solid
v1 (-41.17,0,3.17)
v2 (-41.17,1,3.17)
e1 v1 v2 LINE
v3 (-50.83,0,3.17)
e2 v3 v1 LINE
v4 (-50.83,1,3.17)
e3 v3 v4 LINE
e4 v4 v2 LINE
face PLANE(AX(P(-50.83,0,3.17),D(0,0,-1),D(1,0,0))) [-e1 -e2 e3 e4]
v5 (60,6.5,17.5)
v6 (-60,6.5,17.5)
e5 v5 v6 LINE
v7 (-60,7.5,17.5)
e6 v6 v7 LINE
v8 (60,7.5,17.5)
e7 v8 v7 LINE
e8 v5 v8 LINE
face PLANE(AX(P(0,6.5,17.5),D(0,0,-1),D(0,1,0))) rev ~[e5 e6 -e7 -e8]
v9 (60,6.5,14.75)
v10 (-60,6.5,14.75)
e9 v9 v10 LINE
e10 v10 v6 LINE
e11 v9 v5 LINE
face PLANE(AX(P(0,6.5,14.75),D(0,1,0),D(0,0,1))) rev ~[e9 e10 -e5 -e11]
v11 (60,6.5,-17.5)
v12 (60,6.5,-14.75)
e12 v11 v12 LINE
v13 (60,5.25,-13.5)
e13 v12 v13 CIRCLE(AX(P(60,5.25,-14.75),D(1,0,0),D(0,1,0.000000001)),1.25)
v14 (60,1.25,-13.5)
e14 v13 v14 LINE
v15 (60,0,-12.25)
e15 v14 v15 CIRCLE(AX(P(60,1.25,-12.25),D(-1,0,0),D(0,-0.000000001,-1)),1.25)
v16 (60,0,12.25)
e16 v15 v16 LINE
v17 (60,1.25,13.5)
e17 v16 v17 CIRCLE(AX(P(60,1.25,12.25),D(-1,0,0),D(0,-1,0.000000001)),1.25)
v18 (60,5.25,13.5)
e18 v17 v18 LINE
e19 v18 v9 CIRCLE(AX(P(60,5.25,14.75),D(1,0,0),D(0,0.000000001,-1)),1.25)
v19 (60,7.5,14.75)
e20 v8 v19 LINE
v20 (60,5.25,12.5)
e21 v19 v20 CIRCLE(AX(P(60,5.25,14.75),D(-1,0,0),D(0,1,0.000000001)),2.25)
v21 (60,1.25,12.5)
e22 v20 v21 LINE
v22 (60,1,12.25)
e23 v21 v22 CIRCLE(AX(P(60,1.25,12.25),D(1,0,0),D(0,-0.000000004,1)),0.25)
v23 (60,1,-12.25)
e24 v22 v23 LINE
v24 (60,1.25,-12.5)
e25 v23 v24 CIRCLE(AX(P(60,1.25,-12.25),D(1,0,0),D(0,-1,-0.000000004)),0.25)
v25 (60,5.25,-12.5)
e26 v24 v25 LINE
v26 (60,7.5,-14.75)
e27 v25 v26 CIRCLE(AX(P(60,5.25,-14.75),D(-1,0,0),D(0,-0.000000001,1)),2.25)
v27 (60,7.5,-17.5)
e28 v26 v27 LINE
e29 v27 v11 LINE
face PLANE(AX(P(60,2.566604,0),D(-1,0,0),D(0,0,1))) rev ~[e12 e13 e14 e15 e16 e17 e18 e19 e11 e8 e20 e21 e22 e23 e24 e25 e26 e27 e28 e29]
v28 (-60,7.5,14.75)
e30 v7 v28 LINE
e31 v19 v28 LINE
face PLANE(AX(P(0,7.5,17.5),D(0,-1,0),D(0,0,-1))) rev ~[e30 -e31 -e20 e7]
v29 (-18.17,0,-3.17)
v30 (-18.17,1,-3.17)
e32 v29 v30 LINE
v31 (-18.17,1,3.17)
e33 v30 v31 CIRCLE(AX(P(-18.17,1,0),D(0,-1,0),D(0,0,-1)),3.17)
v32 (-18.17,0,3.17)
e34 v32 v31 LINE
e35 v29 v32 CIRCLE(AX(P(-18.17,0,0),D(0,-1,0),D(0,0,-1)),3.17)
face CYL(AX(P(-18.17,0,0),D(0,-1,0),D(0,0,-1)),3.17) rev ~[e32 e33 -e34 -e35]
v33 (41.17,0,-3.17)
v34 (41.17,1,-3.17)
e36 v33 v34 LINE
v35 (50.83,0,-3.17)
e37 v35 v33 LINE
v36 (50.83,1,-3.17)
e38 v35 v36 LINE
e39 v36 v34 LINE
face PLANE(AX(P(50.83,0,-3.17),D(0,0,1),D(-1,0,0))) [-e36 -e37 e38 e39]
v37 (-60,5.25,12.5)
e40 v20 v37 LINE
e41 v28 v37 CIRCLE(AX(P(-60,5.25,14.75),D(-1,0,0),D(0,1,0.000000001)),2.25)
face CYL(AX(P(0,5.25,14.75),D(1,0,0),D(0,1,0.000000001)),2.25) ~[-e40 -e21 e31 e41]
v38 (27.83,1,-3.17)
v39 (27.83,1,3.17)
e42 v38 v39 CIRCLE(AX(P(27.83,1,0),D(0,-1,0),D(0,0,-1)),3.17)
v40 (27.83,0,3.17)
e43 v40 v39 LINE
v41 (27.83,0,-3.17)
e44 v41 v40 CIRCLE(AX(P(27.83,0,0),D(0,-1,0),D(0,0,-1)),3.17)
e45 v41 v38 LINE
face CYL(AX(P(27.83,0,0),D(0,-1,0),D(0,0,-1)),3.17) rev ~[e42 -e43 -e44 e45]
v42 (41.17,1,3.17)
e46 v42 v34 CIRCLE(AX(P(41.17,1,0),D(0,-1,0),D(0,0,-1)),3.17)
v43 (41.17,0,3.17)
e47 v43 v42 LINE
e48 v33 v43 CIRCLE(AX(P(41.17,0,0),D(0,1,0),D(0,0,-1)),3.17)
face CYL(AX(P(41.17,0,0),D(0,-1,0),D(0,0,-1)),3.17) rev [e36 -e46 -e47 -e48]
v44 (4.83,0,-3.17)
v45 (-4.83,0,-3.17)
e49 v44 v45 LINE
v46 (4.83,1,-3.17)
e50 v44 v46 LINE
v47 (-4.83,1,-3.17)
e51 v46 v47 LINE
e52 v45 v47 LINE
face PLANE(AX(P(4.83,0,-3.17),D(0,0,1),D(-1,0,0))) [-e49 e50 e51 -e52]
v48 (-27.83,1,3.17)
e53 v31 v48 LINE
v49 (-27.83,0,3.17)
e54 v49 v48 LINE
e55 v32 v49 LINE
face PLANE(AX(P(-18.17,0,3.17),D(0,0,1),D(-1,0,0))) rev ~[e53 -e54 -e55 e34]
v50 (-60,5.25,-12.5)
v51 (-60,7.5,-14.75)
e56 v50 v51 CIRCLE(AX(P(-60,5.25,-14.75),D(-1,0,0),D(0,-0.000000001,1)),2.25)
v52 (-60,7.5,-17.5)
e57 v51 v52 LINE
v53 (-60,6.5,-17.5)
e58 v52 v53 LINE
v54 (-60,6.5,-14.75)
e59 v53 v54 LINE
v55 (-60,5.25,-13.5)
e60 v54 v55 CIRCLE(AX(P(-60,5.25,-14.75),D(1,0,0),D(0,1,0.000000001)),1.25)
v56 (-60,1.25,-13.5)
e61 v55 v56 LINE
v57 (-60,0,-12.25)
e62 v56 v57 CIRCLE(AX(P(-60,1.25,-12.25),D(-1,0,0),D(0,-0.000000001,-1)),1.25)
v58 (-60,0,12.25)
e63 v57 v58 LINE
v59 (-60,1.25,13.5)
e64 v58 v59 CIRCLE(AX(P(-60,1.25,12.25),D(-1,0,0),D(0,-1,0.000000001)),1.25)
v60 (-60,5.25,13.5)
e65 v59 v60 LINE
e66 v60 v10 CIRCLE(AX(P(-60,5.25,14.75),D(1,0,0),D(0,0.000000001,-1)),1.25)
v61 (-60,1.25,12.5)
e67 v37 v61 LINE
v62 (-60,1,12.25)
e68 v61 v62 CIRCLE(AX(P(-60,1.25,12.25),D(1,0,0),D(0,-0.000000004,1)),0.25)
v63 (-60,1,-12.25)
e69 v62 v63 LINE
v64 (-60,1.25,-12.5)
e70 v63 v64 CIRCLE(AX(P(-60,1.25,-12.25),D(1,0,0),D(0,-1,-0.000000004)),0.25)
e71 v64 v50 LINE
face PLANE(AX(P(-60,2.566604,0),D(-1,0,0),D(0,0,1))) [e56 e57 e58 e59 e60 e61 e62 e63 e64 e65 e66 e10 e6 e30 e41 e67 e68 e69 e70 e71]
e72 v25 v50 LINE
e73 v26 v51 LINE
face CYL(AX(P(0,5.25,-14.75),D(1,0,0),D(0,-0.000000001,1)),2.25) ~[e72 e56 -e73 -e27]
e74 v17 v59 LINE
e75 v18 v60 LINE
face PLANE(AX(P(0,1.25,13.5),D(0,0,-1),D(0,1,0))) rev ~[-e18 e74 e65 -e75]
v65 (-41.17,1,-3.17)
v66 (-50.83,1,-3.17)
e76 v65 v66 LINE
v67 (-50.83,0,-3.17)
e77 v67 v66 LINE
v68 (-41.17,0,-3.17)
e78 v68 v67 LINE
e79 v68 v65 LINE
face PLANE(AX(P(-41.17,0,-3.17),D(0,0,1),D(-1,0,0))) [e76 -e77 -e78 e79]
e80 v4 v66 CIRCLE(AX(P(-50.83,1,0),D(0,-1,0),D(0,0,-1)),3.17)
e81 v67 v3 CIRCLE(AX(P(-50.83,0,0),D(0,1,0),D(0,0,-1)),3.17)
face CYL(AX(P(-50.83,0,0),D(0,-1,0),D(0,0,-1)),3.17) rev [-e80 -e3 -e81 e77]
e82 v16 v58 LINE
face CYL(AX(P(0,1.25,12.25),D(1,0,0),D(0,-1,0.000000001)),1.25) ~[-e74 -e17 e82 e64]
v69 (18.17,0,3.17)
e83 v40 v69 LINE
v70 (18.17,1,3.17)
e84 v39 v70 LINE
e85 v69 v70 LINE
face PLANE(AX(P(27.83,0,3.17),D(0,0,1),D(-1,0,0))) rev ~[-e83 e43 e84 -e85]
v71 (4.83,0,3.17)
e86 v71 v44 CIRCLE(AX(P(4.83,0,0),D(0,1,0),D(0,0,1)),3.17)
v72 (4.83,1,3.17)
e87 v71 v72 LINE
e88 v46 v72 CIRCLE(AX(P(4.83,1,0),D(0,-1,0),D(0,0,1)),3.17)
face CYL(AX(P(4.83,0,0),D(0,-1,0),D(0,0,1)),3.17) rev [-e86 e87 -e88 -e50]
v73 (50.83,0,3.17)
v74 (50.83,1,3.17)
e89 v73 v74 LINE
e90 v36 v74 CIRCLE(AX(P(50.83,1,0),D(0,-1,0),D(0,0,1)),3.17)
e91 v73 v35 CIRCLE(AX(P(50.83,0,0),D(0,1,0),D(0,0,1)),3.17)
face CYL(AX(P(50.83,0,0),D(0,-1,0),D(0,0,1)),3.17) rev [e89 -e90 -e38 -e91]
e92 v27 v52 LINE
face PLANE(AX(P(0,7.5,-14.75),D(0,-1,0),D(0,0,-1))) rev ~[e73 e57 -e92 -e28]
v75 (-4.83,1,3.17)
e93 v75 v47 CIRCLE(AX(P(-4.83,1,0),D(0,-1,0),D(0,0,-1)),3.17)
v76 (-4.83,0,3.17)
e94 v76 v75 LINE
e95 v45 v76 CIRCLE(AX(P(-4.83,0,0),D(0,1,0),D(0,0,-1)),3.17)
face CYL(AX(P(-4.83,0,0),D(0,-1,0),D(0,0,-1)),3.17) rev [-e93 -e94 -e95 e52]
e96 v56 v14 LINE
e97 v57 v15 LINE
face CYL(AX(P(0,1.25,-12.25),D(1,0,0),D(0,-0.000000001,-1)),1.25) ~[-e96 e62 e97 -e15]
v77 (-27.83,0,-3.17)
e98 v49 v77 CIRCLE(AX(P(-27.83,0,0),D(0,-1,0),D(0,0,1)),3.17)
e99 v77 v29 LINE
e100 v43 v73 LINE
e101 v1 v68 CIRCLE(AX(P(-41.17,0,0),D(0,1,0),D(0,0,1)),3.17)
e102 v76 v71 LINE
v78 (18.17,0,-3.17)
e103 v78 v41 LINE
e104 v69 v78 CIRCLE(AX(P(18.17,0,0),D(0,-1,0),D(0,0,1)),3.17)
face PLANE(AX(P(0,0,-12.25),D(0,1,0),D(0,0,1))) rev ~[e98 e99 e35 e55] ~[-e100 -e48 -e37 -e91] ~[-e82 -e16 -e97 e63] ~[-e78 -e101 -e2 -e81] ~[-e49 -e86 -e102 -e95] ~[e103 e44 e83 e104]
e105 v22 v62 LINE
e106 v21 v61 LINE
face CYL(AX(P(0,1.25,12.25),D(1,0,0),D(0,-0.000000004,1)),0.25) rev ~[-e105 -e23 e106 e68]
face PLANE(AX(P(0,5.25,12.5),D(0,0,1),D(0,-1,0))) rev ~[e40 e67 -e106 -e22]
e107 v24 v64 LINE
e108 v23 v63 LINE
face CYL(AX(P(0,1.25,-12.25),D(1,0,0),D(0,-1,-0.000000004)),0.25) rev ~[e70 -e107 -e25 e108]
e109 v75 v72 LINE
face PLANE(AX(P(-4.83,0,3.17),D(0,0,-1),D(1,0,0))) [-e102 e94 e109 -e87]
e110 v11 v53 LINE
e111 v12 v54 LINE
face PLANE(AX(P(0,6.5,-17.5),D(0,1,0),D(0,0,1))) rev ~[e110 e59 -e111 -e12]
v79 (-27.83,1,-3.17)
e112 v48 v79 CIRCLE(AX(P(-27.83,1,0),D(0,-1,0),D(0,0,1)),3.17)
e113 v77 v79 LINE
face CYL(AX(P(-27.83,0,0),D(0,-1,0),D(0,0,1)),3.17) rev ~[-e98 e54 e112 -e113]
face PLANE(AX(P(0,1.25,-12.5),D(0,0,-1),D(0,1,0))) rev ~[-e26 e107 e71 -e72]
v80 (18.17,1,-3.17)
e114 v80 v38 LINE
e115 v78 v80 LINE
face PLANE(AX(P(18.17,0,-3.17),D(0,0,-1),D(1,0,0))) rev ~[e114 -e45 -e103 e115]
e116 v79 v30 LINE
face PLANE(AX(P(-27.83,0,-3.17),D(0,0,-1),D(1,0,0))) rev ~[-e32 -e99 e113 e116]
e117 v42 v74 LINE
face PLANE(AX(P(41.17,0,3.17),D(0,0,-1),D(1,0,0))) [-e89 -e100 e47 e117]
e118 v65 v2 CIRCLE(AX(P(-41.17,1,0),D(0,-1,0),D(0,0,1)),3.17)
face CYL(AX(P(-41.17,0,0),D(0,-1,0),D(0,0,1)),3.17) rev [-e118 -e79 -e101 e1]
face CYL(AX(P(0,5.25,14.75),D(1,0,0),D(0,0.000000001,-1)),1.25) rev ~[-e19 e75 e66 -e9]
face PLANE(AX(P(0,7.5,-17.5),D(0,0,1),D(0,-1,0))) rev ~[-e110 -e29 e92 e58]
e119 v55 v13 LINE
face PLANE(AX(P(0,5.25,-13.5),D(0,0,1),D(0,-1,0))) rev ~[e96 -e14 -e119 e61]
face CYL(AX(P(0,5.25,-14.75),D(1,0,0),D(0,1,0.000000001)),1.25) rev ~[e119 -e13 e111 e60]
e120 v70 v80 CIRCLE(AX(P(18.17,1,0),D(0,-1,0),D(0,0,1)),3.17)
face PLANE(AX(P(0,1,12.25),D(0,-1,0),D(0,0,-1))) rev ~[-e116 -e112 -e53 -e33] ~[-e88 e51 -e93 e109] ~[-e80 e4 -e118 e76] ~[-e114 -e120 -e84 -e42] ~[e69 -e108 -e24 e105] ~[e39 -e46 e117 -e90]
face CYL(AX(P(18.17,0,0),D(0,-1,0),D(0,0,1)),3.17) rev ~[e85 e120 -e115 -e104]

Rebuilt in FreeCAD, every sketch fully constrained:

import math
import FreeCAD as App
import Part
import Sketcher
Q = App.Units.Quantity

doc = App.newDocument("Part")
body = doc.addObject("PartDesign::Body", "Body")

# Sketch on YZ plane
sketch1 = body.newObject("Sketcher::SketchObject", "Sketch")
sketch1.AttachmentSupport = (doc.getObject("YZ_Plane"), [""])
sketch1.MapMode = "FlatFace"
sketch1.addGeometry(Part.LineSegment(App.Vector(0, 12.25, 0), App.Vector(0, -12.25, 0)), False)
sketch1.addGeometry(Part.ArcOfCircle(Part.Circle(App.Vector(1.25, -12.25, 0), App.Vector(0, 0, 1), 1.25), math.radians(-180), math.radians(-90)), False)
sketch1.addGeometry(Part.LineSegment(App.Vector(1.25, -13.5, 0), App.Vector(5.25, -13.5, 0)), False)
sketch1.addGeometry(Part.ArcOfCircle(Part.Circle(App.Vector(5.25, -14.75, 0), App.Vector(0, 0, 1), 1.25), math.radians(0), math.radians(90)), False)
sketch1.addGeometry(Part.LineSegment(App.Vector(6.5, -14.75, 0), App.Vector(6.5, -17.5, 0)), False)
sketch1.addGeometry(Part.LineSegment(App.Vector(6.5, -17.5, 0), App.Vector(7.5, -17.5, 0)), False)
sketch1.addGeometry(Part.LineSegment(App.Vector(7.5, -17.5, 0), App.Vector(7.5, -14.75, 0)), False)
sketch1.addGeometry(Part.ArcOfCircle(Part.Circle(App.Vector(5.25, -14.75, 0), App.Vector(0, 0, 1), 2.25), math.radians(0), math.radians(90)), False)
sketch1.addGeometry(Part.LineSegment(App.Vector(5.25, -12.5, 0), App.Vector(1.25, -12.5, 0)), False)
sketch1.addGeometry(Part.ArcOfCircle(Part.Circle(App.Vector(1.25, -12.25, 0), App.Vector(0, 0, 1), 0.25), math.radians(-180), math.radians(-90)), False)
sketch1.addGeometry(Part.LineSegment(App.Vector(1, -12.25, 0), App.Vector(1, 12.25, 0)), False)
sketch1.addGeometry(Part.ArcOfCircle(Part.Circle(App.Vector(1.25, 12.25, 0), App.Vector(0, 0, 1), 0.25), math.radians(90), math.radians(180)), False)
sketch1.addGeometry(Part.LineSegment(App.Vector(1.25, 12.5, 0), App.Vector(5.25, 12.5, 0)), False)
sketch1.addGeometry(Part.ArcOfCircle(Part.Circle(App.Vector(5.25, 14.75, 0), App.Vector(0, 0, 1), 2.25), math.radians(-90), math.radians(0)), False)
sketch1.addGeometry(Part.LineSegment(App.Vector(7.5, 14.75, 0), App.Vector(7.5, 17.5, 0)), False)
sketch1.addGeometry(Part.LineSegment(App.Vector(7.5, 17.5, 0), App.Vector(6.5, 17.5, 0)), False)
sketch1.addGeometry(Part.LineSegment(App.Vector(6.5, 17.5, 0), App.Vector(6.5, 14.75, 0)), False)
sketch1.addGeometry(Part.ArcOfCircle(Part.Circle(App.Vector(5.25, 14.75, 0), App.Vector(0, 0, 1), 1.25), math.radians(-90), math.radians(0)), False)
sketch1.addGeometry(Part.LineSegment(App.Vector(5.25, 13.5, 0), App.Vector(1.25, 13.5, 0)), False)
sketch1.addGeometry(Part.ArcOfCircle(Part.Circle(App.Vector(1.25, 12.25, 0), App.Vector(0, 0, 1), 1.25), math.radians(90), math.radians(180)), False)
sketch1.addConstraint(Sketcher.Constraint("Tangent", 0, 2, 1, 1))
sketch1.addConstraint(Sketcher.Constraint("Tangent", 1, 2, 2, 1))
sketch1.addConstraint(Sketcher.Constraint("Tangent", 2, 2, 3, 2))
sketch1.addConstraint(Sketcher.Constraint("Tangent", 3, 1, 4, 1))
sketch1.addConstraint(Sketcher.Constraint("Coincident", 4, 2, 5, 1))
sketch1.addConstraint(Sketcher.Constraint("Coincident", 5, 2, 6, 1))
sketch1.addConstraint(Sketcher.Constraint("Tangent", 6, 2, 7, 1))
sketch1.addConstraint(Sketcher.Constraint("Tangent", 7, 2, 8, 1))
sketch1.addConstraint(Sketcher.Constraint("Tangent", 8, 2, 9, 2))
sketch1.addConstraint(Sketcher.Constraint("Tangent", 9, 1, 10, 1))
sketch1.addConstraint(Sketcher.Constraint("Tangent", 10, 2, 11, 2))
sketch1.addConstraint(Sketcher.Constraint("Tangent", 11, 1, 12, 1))
sketch1.addConstraint(Sketcher.Constraint("Tangent", 12, 2, 13, 1))
sketch1.addConstraint(Sketcher.Constraint("Tangent", 13, 2, 14, 1))
sketch1.addConstraint(Sketcher.Constraint("Coincident", 14, 2, 15, 1))
sketch1.addConstraint(Sketcher.Constraint("Coincident", 15, 2, 16, 1))
sketch1.addConstraint(Sketcher.Constraint("Tangent", 16, 2, 17, 2))
sketch1.addConstraint(Sketcher.Constraint("Tangent", 17, 1, 18, 1))
sketch1.addConstraint(Sketcher.Constraint("Tangent", 18, 2, 19, 1))
sketch1.addConstraint(Sketcher.Constraint("Tangent", 19, 2, 0, 1))
sketch1.addConstraint(Sketcher.Constraint("Vertical", 0))
sketch1.addConstraint(Sketcher.Constraint("Horizontal", 2))
sketch1.addConstraint(Sketcher.Constraint("Vertical", 4))
sketch1.addConstraint(Sketcher.Constraint("Horizontal", 5))
sketch1.addConstraint(Sketcher.Constraint("Vertical", 6))
sketch1.addConstraint(Sketcher.Constraint("Horizontal", 8))
sketch1.addConstraint(Sketcher.Constraint("Vertical", 10))
sketch1.addConstraint(Sketcher.Constraint("Horizontal", 12))
sketch1.addConstraint(Sketcher.Constraint("Vertical", 14))
sketch1.addConstraint(Sketcher.Constraint("Horizontal", 15))
sketch1.addConstraint(Sketcher.Constraint("Vertical", 16))
sketch1.addConstraint(Sketcher.Constraint("Horizontal", 18))
sketch1.addConstraint(Sketcher.Constraint("Coincident", 7, 3, 3, 3))
sketch1.addConstraint(Sketcher.Constraint("Coincident", 9, 3, 1, 3))
sketch1.addConstraint(Sketcher.Constraint("Coincident", 17, 3, 13, 3))
sketch1.addConstraint(Sketcher.Constraint("Coincident", 19, 3, 11, 3))
sketch1.addConstraint(Sketcher.Constraint("Equal", 1, 3))
sketch1.addConstraint(Sketcher.Constraint("Equal", 9, 11))
sketch1.addConstraint(Sketcher.Constraint("Equal", 7, 13))
sketch1.addConstraint(Sketcher.Constraint("Symmetric", 0, 2, 19, 2, -1, 1))
sketch1.addConstraint(Sketcher.Constraint("Symmetric", 5, 2, 14, 2, -1))
sketch1.addConstraint(Sketcher.Constraint("DistanceX", 2, 1, 2, 2, Q("4 mm")))
sketch1.addConstraint(Sketcher.Constraint("DistanceX", 5, 1, 5, 2, Q("1 mm")))
sketch1.addConstraint(Sketcher.Constraint("Radius", 1, Q("1.25 mm")))
sketch1.addConstraint(Sketcher.Constraint("DistanceY", 0, 2, 0, 1, Q("24.5 mm")))
sketch1.addConstraint(Sketcher.Constraint("DistanceY", 4, 2, 2, 2, Q("4 mm")))
pad1 = body.newObject("PartDesign::Pad", "Pad")
pad1.Profile = sketch1
pad1.Length = 120
pad1.Midplane = True

# Sketch on XZ plane
sketch2 = body.newObject("Sketcher::SketchObject", "Sketch001")
sketch2.AttachmentSupport = (doc.getObject("XZ_Plane"), [""])
sketch2.MapMode = "FlatFace"
sketch2.addGeometry(Part.LineSegment(App.Vector(4.8, 3.2, 0), App.Vector(-4.8, 3.2, 0)), False)
sketch2.addGeometry(Part.ArcOfCircle(Part.Circle(App.Vector(-4.8, 0, 0), App.Vector(0, 0, 1), 3.2), math.radians(90), math.radians(270)), False)
sketch2.addGeometry(Part.LineSegment(App.Vector(-4.8, -3.2, 0), App.Vector(4.8, -3.2, 0)), False)
sketch2.addGeometry(Part.ArcOfCircle(Part.Circle(App.Vector(4.8, 0, 0), App.Vector(0, 0, 1), 3.2), math.radians(-90), math.radians(90)), False)
sketch2.addGeometry(Part.LineSegment(App.Vector(18.2, -3.2, 0), App.Vector(27.8, -3.2, 0)), False)
sketch2.addGeometry(Part.ArcOfCircle(Part.Circle(App.Vector(27.8, 0, 0), App.Vector(0, 0, 1), 3.2), math.radians(-90), math.radians(90)), False)
sketch2.addGeometry(Part.LineSegment(App.Vector(27.8, 3.2, 0), App.Vector(18.2, 3.2, 0)), False)
sketch2.addGeometry(Part.ArcOfCircle(Part.Circle(App.Vector(18.2, 0, 0), App.Vector(0, 0, 1), 3.2), math.radians(90), math.radians(270)), False)
sketch2.addGeometry(Part.LineSegment(App.Vector(-27.8, -3.2, 0), App.Vector(-18.2, -3.2, 0)), False)
sketch2.addGeometry(Part.ArcOfCircle(Part.Circle(App.Vector(-18.2, 0, 0), App.Vector(0, 0, 1), 3.2), math.radians(-90), math.radians(90)), False)
sketch2.addGeometry(Part.LineSegment(App.Vector(-18.2, 3.2, 0), App.Vector(-27.8, 3.2, 0)), False)
sketch2.addGeometry(Part.ArcOfCircle(Part.Circle(App.Vector(-27.8, 0, 0), App.Vector(0, 0, 1), 3.2), math.radians(90), math.radians(270)), False)
sketch2.addGeometry(Part.LineSegment(App.Vector(-41.2, 3.2, 0), App.Vector(-50.8, 3.2, 0)), False)
sketch2.addGeometry(Part.ArcOfCircle(Part.Circle(App.Vector(-50.8, 0, 0), App.Vector(0, 0, 1), 3.2), math.radians(90), math.radians(270)), False)
sketch2.addGeometry(Part.LineSegment(App.Vector(-50.8, -3.2, 0), App.Vector(-41.2, -3.2, 0)), False)
sketch2.addGeometry(Part.ArcOfCircle(Part.Circle(App.Vector(-41.2, 0, 0), App.Vector(0, 0, 1), 3.2), math.radians(-90), math.radians(90)), False)
sketch2.addGeometry(Part.LineSegment(App.Vector(50.8, 3.2, 0), App.Vector(41.2, 3.2, 0)), False)
sketch2.addGeometry(Part.ArcOfCircle(Part.Circle(App.Vector(41.2, 0, 0), App.Vector(0, 0, 1), 3.2), math.radians(90), math.radians(270)), False)
sketch2.addGeometry(Part.LineSegment(App.Vector(41.2, -3.2, 0), App.Vector(50.8, -3.2, 0)), False)
sketch2.addGeometry(Part.ArcOfCircle(Part.Circle(App.Vector(50.8, 0, 0), App.Vector(0, 0, 1), 3.2), math.radians(-90), math.radians(90)), False)
sketch2.addConstraint(Sketcher.Constraint("Tangent", 0, 2, 1, 1))
sketch2.addConstraint(Sketcher.Constraint("Tangent", 1, 2, 2, 1))
sketch2.addConstraint(Sketcher.Constraint("Tangent", 2, 2, 3, 1))
sketch2.addConstraint(Sketcher.Constraint("Tangent", 3, 2, 0, 1))
sketch2.addConstraint(Sketcher.Constraint("Tangent", 4, 2, 5, 1))
sketch2.addConstraint(Sketcher.Constraint("Tangent", 5, 2, 6, 1))
sketch2.addConstraint(Sketcher.Constraint("Tangent", 6, 2, 7, 1))
sketch2.addConstraint(Sketcher.Constraint("Tangent", 7, 2, 4, 1))
sketch2.addConstraint(Sketcher.Constraint("Tangent", 8, 2, 9, 1))
sketch2.addConstraint(Sketcher.Constraint("Tangent", 9, 2, 10, 1))
sketch2.addConstraint(Sketcher.Constraint("Tangent", 10, 2, 11, 1))
sketch2.addConstraint(Sketcher.Constraint("Tangent", 11, 2, 8, 1))
sketch2.addConstraint(Sketcher.Constraint("Tangent", 12, 2, 13, 1))
sketch2.addConstraint(Sketcher.Constraint("Tangent", 13, 2, 14, 1))
sketch2.addConstraint(Sketcher.Constraint("Tangent", 14, 2, 15, 1))
sketch2.addConstraint(Sketcher.Constraint("Tangent", 15, 2, 12, 1))
sketch2.addConstraint(Sketcher.Constraint("Tangent", 16, 2, 17, 1))
sketch2.addConstraint(Sketcher.Constraint("Tangent", 17, 2, 18, 1))
sketch2.addConstraint(Sketcher.Constraint("Tangent", 18, 2, 19, 1))
sketch2.addConstraint(Sketcher.Constraint("Tangent", 19, 2, 16, 1))
sketch2.addConstraint(Sketcher.Constraint("Horizontal", 0))
sketch2.addConstraint(Sketcher.Constraint("Horizontal", 2))
sketch2.addConstraint(Sketcher.Constraint("Horizontal", 4))
sketch2.addConstraint(Sketcher.Constraint("Horizontal", 6))
sketch2.addConstraint(Sketcher.Constraint("Horizontal", 8))
sketch2.addConstraint(Sketcher.Constraint("Horizontal", 10))
sketch2.addConstraint(Sketcher.Constraint("Horizontal", 12))
sketch2.addConstraint(Sketcher.Constraint("Horizontal", 14))
sketch2.addConstraint(Sketcher.Constraint("Horizontal", 16))
sketch2.addConstraint(Sketcher.Constraint("Horizontal", 18))
sketch2.addConstraint(Sketcher.Constraint("Equal", 3, 5))
sketch2.addConstraint(Sketcher.Constraint("Equal", 7, 9))
sketch2.addConstraint(Sketcher.Constraint("Equal", 11, 13))
sketch2.addConstraint(Sketcher.Constraint("Equal", 15, 17))
sketch2.addConstraint(Sketcher.Constraint("Symmetric", 1, 3, 3, 3, -1, 1))
sketch2.addConstraint(Sketcher.Constraint("Symmetric", 7, 3, 9, 3, -1, 1))
sketch2.addConstraint(Sketcher.Constraint("Symmetric", 15, 3, 17, 3, -1, 1))
sketch2.addConstraint(Sketcher.Constraint("Symmetric", 5, 3, 11, 3, -2))
sketch2.addConstraint(Sketcher.Constraint("Symmetric", 13, 3, 19, 3, -2))
sketch2.addConstraint(Sketcher.Constraint("Equal", 2, 4))
sketch2.addConstraint(Sketcher.Constraint("Equal", 10, 12))
sketch2.addConstraint(Sketcher.Constraint("Radius", 1, Q("3.17 mm")))
sketch2.addConstraint(Sketcher.Constraint("DistanceX", 3, 3, 5, 3, Q("23 mm")))
sketch2.addConstraint(Sketcher.Constraint("DistanceX", 13, 3, 11, 3, Q("23 mm")))
sketch2.addConstraint(Sketcher.Constraint("DistanceX", 0, 2, 0, 1, Q("9.66 mm")))
pocket1 = body.newObject("PartDesign::Pocket", "Pocket")
pocket1.Profile = sketch2
pocket1.Length = 120

doc.recompute()
